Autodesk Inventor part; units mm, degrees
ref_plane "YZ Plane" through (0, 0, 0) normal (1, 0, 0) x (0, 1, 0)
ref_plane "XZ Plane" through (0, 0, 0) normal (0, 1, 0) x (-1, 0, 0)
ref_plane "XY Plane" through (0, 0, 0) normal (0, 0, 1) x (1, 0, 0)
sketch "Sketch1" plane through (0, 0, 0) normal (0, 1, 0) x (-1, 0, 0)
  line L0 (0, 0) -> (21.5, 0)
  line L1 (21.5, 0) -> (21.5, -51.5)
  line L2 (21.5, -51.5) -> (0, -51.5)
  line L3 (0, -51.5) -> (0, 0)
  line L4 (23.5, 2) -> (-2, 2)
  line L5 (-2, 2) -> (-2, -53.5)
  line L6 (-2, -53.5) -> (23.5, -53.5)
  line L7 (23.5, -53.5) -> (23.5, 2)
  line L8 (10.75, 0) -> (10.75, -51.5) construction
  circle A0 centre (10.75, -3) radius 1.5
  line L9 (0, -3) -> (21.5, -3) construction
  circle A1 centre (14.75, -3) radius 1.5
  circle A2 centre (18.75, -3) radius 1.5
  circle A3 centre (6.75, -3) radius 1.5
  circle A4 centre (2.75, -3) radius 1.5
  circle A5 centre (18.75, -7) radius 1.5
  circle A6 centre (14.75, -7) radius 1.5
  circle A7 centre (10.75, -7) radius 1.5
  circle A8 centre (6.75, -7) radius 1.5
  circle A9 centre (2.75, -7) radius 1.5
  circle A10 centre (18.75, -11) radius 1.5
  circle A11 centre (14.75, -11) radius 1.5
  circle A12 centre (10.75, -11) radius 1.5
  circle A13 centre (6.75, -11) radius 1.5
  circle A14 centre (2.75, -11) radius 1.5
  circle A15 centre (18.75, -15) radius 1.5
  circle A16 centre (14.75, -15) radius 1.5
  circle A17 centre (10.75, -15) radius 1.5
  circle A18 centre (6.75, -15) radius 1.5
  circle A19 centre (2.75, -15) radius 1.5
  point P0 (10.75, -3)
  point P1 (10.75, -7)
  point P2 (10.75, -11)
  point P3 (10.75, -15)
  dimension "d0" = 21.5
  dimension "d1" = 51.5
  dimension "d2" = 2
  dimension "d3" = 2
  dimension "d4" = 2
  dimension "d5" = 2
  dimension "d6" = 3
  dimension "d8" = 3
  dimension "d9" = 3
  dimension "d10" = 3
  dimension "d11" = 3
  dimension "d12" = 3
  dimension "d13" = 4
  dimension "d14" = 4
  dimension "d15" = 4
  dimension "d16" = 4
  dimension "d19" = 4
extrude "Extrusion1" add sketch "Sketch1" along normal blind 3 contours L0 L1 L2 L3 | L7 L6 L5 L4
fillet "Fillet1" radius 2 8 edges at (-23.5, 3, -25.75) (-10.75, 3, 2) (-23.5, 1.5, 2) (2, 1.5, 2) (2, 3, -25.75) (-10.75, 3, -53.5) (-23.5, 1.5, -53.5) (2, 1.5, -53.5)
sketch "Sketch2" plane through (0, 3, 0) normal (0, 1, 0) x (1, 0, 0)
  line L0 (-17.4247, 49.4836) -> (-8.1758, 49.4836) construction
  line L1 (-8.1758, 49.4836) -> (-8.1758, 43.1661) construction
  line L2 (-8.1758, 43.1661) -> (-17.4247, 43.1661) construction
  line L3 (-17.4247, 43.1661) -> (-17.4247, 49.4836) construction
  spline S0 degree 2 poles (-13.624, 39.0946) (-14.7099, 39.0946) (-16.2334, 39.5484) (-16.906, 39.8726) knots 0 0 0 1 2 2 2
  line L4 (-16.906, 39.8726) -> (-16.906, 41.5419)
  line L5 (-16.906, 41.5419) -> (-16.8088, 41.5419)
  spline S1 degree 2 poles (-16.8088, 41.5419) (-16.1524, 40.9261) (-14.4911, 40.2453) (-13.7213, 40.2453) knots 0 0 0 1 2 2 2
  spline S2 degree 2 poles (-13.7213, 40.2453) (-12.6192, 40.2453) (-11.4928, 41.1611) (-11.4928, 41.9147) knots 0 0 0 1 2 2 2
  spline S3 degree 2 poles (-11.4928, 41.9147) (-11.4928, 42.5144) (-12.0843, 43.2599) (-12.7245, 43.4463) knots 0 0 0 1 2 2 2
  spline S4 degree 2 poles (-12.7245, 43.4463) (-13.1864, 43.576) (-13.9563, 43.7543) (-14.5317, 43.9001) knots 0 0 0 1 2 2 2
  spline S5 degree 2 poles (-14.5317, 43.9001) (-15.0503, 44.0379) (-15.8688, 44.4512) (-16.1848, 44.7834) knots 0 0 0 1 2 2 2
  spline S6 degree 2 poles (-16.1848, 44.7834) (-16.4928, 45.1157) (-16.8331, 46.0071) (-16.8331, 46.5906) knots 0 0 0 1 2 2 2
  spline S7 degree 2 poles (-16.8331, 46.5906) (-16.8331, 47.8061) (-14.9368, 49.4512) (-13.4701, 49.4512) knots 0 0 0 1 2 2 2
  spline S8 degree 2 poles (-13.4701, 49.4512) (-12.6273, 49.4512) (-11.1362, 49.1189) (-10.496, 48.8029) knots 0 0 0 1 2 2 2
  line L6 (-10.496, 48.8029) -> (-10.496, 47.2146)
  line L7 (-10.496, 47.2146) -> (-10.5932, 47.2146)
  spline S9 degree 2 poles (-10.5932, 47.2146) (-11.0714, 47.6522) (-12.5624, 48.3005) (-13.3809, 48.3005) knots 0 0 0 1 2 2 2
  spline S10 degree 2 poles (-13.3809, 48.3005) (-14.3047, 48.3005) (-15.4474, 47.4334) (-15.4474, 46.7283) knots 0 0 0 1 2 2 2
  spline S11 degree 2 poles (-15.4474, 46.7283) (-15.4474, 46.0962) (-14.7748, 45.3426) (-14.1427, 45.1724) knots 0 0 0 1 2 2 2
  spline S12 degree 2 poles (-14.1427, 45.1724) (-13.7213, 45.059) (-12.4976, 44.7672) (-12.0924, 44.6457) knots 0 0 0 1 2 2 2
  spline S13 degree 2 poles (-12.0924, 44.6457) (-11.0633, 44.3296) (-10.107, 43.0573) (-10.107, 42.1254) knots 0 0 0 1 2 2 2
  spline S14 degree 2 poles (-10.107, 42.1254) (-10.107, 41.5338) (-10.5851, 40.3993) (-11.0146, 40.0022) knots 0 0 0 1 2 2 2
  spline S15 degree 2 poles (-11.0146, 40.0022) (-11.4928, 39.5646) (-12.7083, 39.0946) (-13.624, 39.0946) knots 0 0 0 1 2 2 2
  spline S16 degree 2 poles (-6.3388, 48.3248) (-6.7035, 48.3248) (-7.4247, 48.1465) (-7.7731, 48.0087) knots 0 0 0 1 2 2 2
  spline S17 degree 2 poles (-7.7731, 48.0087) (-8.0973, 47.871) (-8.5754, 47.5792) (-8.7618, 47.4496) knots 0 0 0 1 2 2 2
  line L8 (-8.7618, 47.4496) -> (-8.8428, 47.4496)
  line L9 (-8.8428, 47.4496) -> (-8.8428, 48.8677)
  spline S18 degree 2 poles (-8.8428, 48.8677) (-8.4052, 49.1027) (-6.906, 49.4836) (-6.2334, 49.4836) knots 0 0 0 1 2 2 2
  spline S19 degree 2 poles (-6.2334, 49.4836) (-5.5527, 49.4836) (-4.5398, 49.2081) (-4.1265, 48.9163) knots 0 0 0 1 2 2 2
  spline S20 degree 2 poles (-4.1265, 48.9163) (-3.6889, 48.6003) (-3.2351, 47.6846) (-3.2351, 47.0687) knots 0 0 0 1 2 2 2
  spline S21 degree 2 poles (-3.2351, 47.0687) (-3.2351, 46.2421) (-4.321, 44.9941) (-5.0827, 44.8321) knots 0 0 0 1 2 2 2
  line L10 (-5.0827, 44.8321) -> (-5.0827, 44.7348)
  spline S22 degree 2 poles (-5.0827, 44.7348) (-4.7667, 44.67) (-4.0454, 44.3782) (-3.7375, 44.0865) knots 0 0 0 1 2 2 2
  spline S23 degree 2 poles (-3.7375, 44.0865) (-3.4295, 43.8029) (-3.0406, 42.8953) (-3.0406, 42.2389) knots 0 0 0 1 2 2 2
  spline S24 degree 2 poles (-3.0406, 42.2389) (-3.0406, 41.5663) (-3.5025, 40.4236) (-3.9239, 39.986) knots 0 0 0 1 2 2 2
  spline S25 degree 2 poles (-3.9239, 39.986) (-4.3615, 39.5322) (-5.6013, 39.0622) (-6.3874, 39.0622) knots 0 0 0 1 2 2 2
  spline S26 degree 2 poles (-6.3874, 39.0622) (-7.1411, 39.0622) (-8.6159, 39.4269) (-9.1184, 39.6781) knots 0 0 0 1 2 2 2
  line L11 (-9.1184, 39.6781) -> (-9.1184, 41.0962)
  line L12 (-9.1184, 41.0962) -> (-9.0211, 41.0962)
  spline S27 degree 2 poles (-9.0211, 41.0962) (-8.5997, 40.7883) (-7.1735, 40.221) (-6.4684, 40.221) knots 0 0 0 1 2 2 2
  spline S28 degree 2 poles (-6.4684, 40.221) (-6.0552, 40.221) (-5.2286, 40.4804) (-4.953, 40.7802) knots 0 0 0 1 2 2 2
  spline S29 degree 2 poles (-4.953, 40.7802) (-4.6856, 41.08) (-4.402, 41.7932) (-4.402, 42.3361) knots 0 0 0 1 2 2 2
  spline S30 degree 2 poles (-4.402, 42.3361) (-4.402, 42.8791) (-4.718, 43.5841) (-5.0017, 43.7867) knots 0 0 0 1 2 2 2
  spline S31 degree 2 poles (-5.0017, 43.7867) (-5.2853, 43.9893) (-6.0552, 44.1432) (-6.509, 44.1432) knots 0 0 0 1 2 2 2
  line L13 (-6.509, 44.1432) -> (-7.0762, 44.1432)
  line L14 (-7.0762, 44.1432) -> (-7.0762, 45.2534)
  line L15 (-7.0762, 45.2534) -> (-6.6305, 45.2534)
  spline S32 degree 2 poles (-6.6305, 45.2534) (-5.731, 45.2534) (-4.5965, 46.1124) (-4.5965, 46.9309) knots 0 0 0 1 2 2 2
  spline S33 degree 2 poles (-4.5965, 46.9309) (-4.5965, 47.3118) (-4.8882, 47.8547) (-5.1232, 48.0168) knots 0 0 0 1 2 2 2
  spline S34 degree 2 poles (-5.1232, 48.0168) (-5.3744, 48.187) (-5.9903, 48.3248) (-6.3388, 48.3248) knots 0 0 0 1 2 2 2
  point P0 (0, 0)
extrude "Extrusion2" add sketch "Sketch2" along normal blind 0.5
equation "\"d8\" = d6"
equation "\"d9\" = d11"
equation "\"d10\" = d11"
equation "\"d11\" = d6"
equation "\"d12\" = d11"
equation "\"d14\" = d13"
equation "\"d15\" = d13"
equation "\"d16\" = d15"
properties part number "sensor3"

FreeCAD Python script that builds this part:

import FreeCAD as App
import Part
import Sketcher

V = App.Vector


def edges_at(feature, points):
    """Names of the edges that pass closest to the given points."""
    edges = feature.Shape.Edges
    near = lambda p: min(range(len(edges)), key=lambda i: edges[i].distToShape(Part.Vertex(*p))[0])
    return sorted({f"Edge{near(p) + 1}" for p in points})

doc = App.newDocument("Part")
body = doc.addObject("PartDesign::Body", "Body")

sketch1 = body.newObject("Sketcher::SketchObject", "Sketch")
sketch1.AttachmentSupport = (doc.getObject("XZ_Plane"), [""])
sketch1.MapMode = "FlatFace"
sketch1.addGeometry([
    Part.LineSegment(V(-23.5, -53.5, 0), V(-23.5, 2, 0)),
    Part.LineSegment(V(-23.5, 2, 0), V(2, 2, 0)),
    Part.LineSegment(V(2, 2, 0), V(2, -53.5, 0)),
    Part.LineSegment(V(2, -53.5, 0), V(-23.5, -53.5, 0)),
    Part.Circle(V(-2.75, -15, 0), V(0, 0, 1), 1.5),
    Part.Circle(V(-6.75, -15, 0), V(0, 0, 1), 1.5),
    Part.Circle(V(-2.75, -11, 0), V(0, 0, 1), 1.5),
    Part.Circle(V(-2.75, -7, 0), V(0, 0, 1), 1.5),
    Part.Circle(V(-2.75, -3, 0), V(0, 0, 1), 1.5),
    Part.Circle(V(-6.75, -11, 0), V(0, 0, 1), 1.5),
    Part.Circle(V(-6.75, -7, 0), V(0, 0, 1), 1.5),
    Part.Circle(V(-6.75, -3, 0), V(0, 0, 1), 1.5),
    Part.Circle(V(-10.75, -15, 0), V(0, 0, 1), 1.5),
    Part.Circle(V(-14.75, -15, 0), V(0, 0, 1), 1.5),
    Part.Circle(V(-18.75, -15, 0), V(0, 0, 1), 1.5),
    Part.Circle(V(-10.75, -11, 0), V(0, 0, 1), 1.5),
    Part.Circle(V(-10.75, -7, 0), V(0, 0, 1), 1.5),
    Part.Circle(V(-14.75, -11, 0), V(0, 0, 1), 1.5),
    Part.Circle(V(-14.75, -7, 0), V(0, 0, 1), 1.5),
    Part.Circle(V(-10.75, -3, 0), V(0, 0, 1), 1.5),
    Part.Circle(V(-14.75, -3, 0), V(0, 0, 1), 1.5),
    Part.Circle(V(-18.75, -11, 0), V(0, 0, 1), 1.5),
    Part.Circle(V(-18.75, -7, 0), V(0, 0, 1), 1.5),
    Part.Circle(V(-18.75, -3, 0), V(0, 0, 1), 1.5),
], False)
sketch1.addConstraint([
    Sketcher.Constraint("Coincident", 0, 2, 1, 1),
    Sketcher.Constraint("Coincident", 1, 2, 2, 1),
    Sketcher.Constraint("Coincident", 2, 2, 3, 1),
    Sketcher.Constraint("Coincident", 3, 2, 0, 1),
    Sketcher.Constraint("Vertical", 0),
    Sketcher.Constraint("Horizontal", 1),
    Sketcher.Constraint("Vertical", 2),
    Sketcher.Constraint("Horizontal", 3),
    Sketcher.Constraint("Equal", 4, 5),
    Sketcher.Constraint("Equal", 5, 6),
    Sketcher.Constraint("Equal", 6, 7),
    Sketcher.Constraint("Equal", 7, 8),
    Sketcher.Constraint("Equal", 8, 9),
    Sketcher.Constraint("Equal", 9, 10),
    Sketcher.Constraint("Equal", 10, 11),
    Sketcher.Constraint("Equal", 11, 12),
    Sketcher.Constraint("Equal", 12, 13),
    Sketcher.Constraint("Equal", 13, 14),
    Sketcher.Constraint("Equal", 14, 15),
    Sketcher.Constraint("Equal", 15, 16),
    Sketcher.Constraint("Equal", 16, 17),
    Sketcher.Constraint("Equal", 17, 18),
    Sketcher.Constraint("Equal", 18, 19),
    Sketcher.Constraint("Equal", 19, 20),
    Sketcher.Constraint("Equal", 20, 21),
    Sketcher.Constraint("Equal", 21, 22),
    Sketcher.Constraint("Equal", 22, 23),
    Sketcher.Constraint("Horizontal", 4, 3, 5, 3),
    Sketcher.Constraint("Horizontal", 6, 3, 9, 3),
    Sketcher.Constraint("Horizontal", 7, 3, 10, 3),
    Sketcher.Constraint("Horizontal", 8, 3, 11, 3),
    Sketcher.Constraint("Horizontal", 5, 3, 12, 3),
    Sketcher.Constraint("Horizontal", 12, 3, 13, 3),
    Sketcher.Constraint("Horizontal", 13, 3, 14, 3),
    Sketcher.Constraint("Horizontal", 9, 3, 15, 3),
    Sketcher.Constraint("Horizontal", 10, 3, 16, 3),
    Sketcher.Constraint("Horizontal", 15, 3, 17, 3),
    Sketcher.Constraint("Horizontal", 16, 3, 18, 3),
    Sketcher.Constraint("Horizontal", 11, 3, 19, 3),
    Sketcher.Constraint("Horizontal", 19, 3, 20, 3),
    Sketcher.Constraint("Horizontal", 17, 3, 21, 3),
    Sketcher.Constraint("Horizontal", 18, 3, 22, 3),
    Sketcher.Constraint("Horizontal", 20, 3, 23, 3),
    Sketcher.Constraint("Vertical", 4, 3, 6, 3),
    Sketcher.Constraint("Vertical", 6, 3, 7, 3),
    Sketcher.Constraint("Vertical", 7, 3, 8, 3),
    Sketcher.Constraint("Vertical", 5, 3, 9, 3),
    Sketcher.Constraint("Vertical", 9, 3, 10, 3),
    Sketcher.Constraint("Vertical", 10, 3, 11, 3),
    Sketcher.Constraint("Vertical", 12, 3, 15, 3),
    Sketcher.Constraint("Vertical", 15, 3, 16, 3),
    Sketcher.Constraint("Vertical", 13, 3, 17, 3),
    Sketcher.Constraint("Vertical", 17, 3, 18, 3),
    Sketcher.Constraint("Vertical", 16, 3, 19, 3),
    Sketcher.Constraint("Vertical", 18, 3, 20, 3),
    Sketcher.Constraint("Vertical", 14, 3, 21, 3),
    Sketcher.Constraint("Vertical", 21, 3, 22, 3),
    Sketcher.Constraint("Vertical", 22, 3, 23, 3),
    Sketcher.Constraint("Diameter", 4, 3.0),
    Sketcher.Constraint("DistanceY", 8, 3, -1, 1, 3.0),
    Sketcher.Constraint("DistanceY", -1, 1, 0, 2, 2.0),
    Sketcher.Constraint("DistanceX", -1, 1, 1, 2, 2.0),
    Sketcher.Constraint("DistanceX", 5, 3, 4, 3, 4.0),
    Sketcher.Constraint("DistanceY", 4, 3, 6, 3, 4.0),
    Sketcher.Constraint("DistanceY", 6, 3, 7, 3, 4.0),
    Sketcher.Constraint("DistanceY", 7, 3, 8, 3, 4.0),
    Sketcher.Constraint("DistanceX", 12, 3, 5, 3, 4.0),
    Sketcher.Constraint("DistanceX", 13, 3, 12, 3, 4.0),
    Sketcher.Constraint("DistanceX", 14, 3, 13, 3, 4.0),
    Sketcher.Constraint("DistanceX", 1, 1, 1, 2, 25.5),
    Sketcher.Constraint("DistanceY", 0, 1, 0, 2, 55.5),
    Sketcher.Constraint("DistanceX", 4, 3, -1, 1, 2.75),
])
pad1 = body.newObject("PartDesign::Pad", "Pad")
pad1.Profile = sketch1
pad1.Length = 3
pad1.Reversed = True
doc.recompute()

fillet = body.newObject("PartDesign::Fillet", "Fillet")
fillet.Base = (pad1, edges_at(pad1, [
    (-23.5, 3, -25.75),
    (-10.75, 3, 2),
    (-23.5, 1.5, 2),
    (2, 1.5, 2),
    (2, 3, -25.75),
    (-10.75, 3, -53.5),
    (-23.5, 1.5, -53.5),
    (2, 1.5, -53.5),
]))
fillet.Radius = 2

sketch2 = body.newObject("Sketcher::SketchObject", "Sketch001")
sketch2.AttachmentSupport = (doc.getObject("XZ_Plane"), [""])
sketch2.MapMode = "FlatFace"
sketch2.AttachmentOffset = App.Placement(V(0, 0, -3), App.Rotation())
sketch2.addGeometry([
    Part.BSplineCurve([V(-13.624, -39.0946, 0), V(-14.7099, -39.0946, 0), V(-16.2334, -39.5484, 0), V(-16.906, -39.8726, 0)], [3, 1, 3], [0, 1, 2], False, 2, [1, 1, 1, 1], False),
    Part.BSplineCurve([V(-11.0146, -40.0022, 0), V(-11.4928, -39.5646, 0), V(-12.7083, -39.0946, 0), V(-13.624, -39.0946, 0)], [3, 1, 3], [0, 1, 2], False, 2, [1, 1, 1, 1], False),
    Part.BSplineCurve([V(-10.107, -42.1254, 0), V(-10.107, -41.5338, 0), V(-10.5851, -40.3993, 0), V(-11.0146, -40.0022, 0)], [3, 1, 3], [0, 1, 2], False, 2, [1, 1, 1, 1], False),
    Part.BSplineCurve([V(-12.0924, -44.6457, 0), V(-11.0633, -44.3296, 0), V(-10.107, -43.0573, 0), V(-10.107, -42.1254, 0)], [3, 1, 3], [0, 1, 2], False, 2, [1, 1, 1, 1], False),
    Part.BSplineCurve([V(-14.1427, -45.1724, 0), V(-13.7213, -45.059, 0), V(-12.4976, -44.7672, 0), V(-12.0924, -44.6457, 0)], [3, 1, 3], [0, 1, 2], False, 2, [1, 1, 1, 1], False),
    Part.BSplineCurve([V(-15.4474, -46.7283, 0), V(-15.4474, -46.0962, 0), V(-14.7748, -45.3426, 0), V(-14.1427, -45.1724, 0)], [3, 1, 3], [0, 1, 2], False, 2, [1, 1, 1, 1], False),
    Part.BSplineCurve([V(-13.3809, -48.3005, 0), V(-14.3047, -48.3005, 0), V(-15.4474, -47.4334, 0), V(-15.4474, -46.7283, 0)], [3, 1, 3], [0, 1, 2], False, 2, [1, 1, 1, 1], False),
    Part.BSplineCurve([V(-10.5932, -47.2146, 0), V(-11.0714, -47.6522, 0), V(-12.5624, -48.3005, 0), V(-13.3809, -48.3005, 0)], [3, 1, 3], [0, 1, 2], False, 2, [1, 1, 1, 1], False),
    Part.LineSegment(V(-10.5932, -47.2146, 0), V(-10.496, -47.2146, 0)),
    Part.LineSegment(V(-10.496, -47.2146, 0), V(-10.496, -48.8029, 0)),
    Part.BSplineCurve([V(-13.4701, -49.4512, 0), V(-12.6273, -49.4512, 0), V(-11.1362, -49.1189, 0), V(-10.496, -48.8029, 0)], [3, 1, 3], [0, 1, 2], False, 2, [1, 1, 1, 1], False),
    Part.BSplineCurve([V(-16.8331, -46.5906, 0), V(-16.8331, -47.8061, 0), V(-14.9368, -49.4512, 0), V(-13.4701, -49.4512, 0)], [3, 1, 3], [0, 1, 2], False, 2, [1, 1, 1, 1], False),
    Part.BSplineCurve([V(-16.1848, -44.7834, 0), V(-16.4928, -45.1157, 0), V(-16.8331, -46.0071, 0), V(-16.8331, -46.5906, 0)], [3, 1, 3], [0, 1, 2], False, 2, [1, 1, 1, 1], False),
    Part.BSplineCurve([V(-14.5317, -43.9001, 0), V(-15.0503, -44.0379, 0), V(-15.8688, -44.4512, 0), V(-16.1848, -44.7834, 0)], [3, 1, 3], [0, 1, 2], False, 2, [1, 1, 1, 1], False),
    Part.BSplineCurve([V(-12.7245, -43.4463, 0), V(-13.1864, -43.576, 0), V(-13.9563, -43.7543, 0), V(-14.5317, -43.9001, 0)], [3, 1, 3], [0, 1, 2], False, 2, [1, 1, 1, 1], False),
    Part.BSplineCurve([V(-11.4928, -41.9147, 0), V(-11.4928, -42.5144, 0), V(-12.0843, -43.2599, 0), V(-12.7245, -43.4463, 0)], [3, 1, 3], [0, 1, 2], False, 2, [1, 1, 1, 1], False),
    Part.BSplineCurve([V(-13.7213, -40.2453, 0), V(-12.6192, -40.2453, 0), V(-11.4928, -41.1611, 0), V(-11.4928, -41.9147, 0)], [3, 1, 3], [0, 1, 2], False, 2, [1, 1, 1, 1], False),
    Part.BSplineCurve([V(-16.8088, -41.5419, 0), V(-16.1524, -40.9261, 0), V(-14.4911, -40.2453, 0), V(-13.7213, -40.2453, 0)], [3, 1, 3], [0, 1, 2], False, 2, [1, 1, 1, 1], False),
    Part.LineSegment(V(-16.8088, -41.5419, 0), V(-16.906, -41.5419, 0)),
    Part.LineSegment(V(-16.906, -41.5419, 0), V(-16.906, -39.8726, 0)),
    Part.BSplineCurve([V(-6.3388, -48.3248, 0), V(-6.7035, -48.3248, 0), V(-7.4247, -48.1465, 0), V(-7.7731, -48.0087, 0)], [3, 1, 3], [0, 1, 2], False, 2, [1, 1, 1, 1], False),
    Part.BSplineCurve([V(-5.1232, -48.0168, 0), V(-5.3744, -48.187, 0), V(-5.9903, -48.3248, 0), V(-6.3388, -48.3248, 0)], [3, 1, 3], [0, 1, 2], False, 2, [1, 1, 1, 1], False),
    Part.BSplineCurve([V(-4.5965, -46.9309, 0), V(-4.5965, -47.3118, 0), V(-4.8882, -47.8547, 0), V(-5.1232, -48.0168, 0)], [3, 1, 3], [0, 1, 2], False, 2, [1, 1, 1, 1], False),
    Part.BSplineCurve([V(-6.6305, -45.2534, 0), V(-5.731, -45.2534, 0), V(-4.5965, -46.1124, 0), V(-4.5965, -46.9309, 0)], [3, 1, 3], [0, 1, 2], False, 2, [1, 1, 1, 1], False),
    Part.LineSegment(V(-6.6305, -45.2534, 0), V(-7.0762, -45.2534, 0)),
    Part.LineSegment(V(-7.0762, -45.2534, 0), V(-7.0762, -44.1432, 0)),
    Part.LineSegment(V(-7.0762, -44.1432, 0), V(-6.509, -44.1432, 0)),
    Part.BSplineCurve([V(-5.0017, -43.7867, 0), V(-5.2853, -43.9893, 0), V(-6.0552, -44.1432, 0), V(-6.509, -44.1432, 0)], [3, 1, 3], [0, 1, 2], False, 2, [1, 1, 1, 1], False),
    Part.BSplineCurve([V(-4.402, -42.3361, 0), V(-4.402, -42.8791, 0), V(-4.718, -43.5841, 0), V(-5.0017, -43.7867, 0)], [3, 1, 3], [0, 1, 2], False, 2, [1, 1, 1, 1], False),
    Part.BSplineCurve([V(-4.953, -40.7802, 0), V(-4.6856, -41.08, 0), V(-4.402, -41.7932, 0), V(-4.402, -42.3361, 0)], [3, 1, 3], [0, 1, 2], False, 2, [1, 1, 1, 1], False),
    Part.BSplineCurve([V(-6.4684, -40.221, 0), V(-6.0552, -40.221, 0), V(-5.2286, -40.4804, 0), V(-4.953, -40.7802, 0)], [3, 1, 3], [0, 1, 2], False, 2, [1, 1, 1, 1], False),
    Part.BSplineCurve([V(-9.0211, -41.0962, 0), V(-8.5997, -40.7883, 0), V(-7.1735, -40.221, 0), V(-6.4684, -40.221, 0)], [3, 1, 3], [0, 1, 2], False, 2, [1, 1, 1, 1], False),
    Part.LineSegment(V(-9.0211, -41.0962, 0), V(-9.1184, -41.0962, 0)),
    Part.LineSegment(V(-9.1184, -41.0962, 0), V(-9.1184, -39.6781, 0)),
    Part.BSplineCurve([V(-6.3874, -39.0622, 0), V(-7.1411, -39.0622, 0), V(-8.6159, -39.4269, 0), V(-9.1184, -39.6781, 0)], [3, 1, 3], [0, 1, 2], False, 2, [1, 1, 1, 1], False),
    Part.BSplineCurve([V(-3.9239, -39.986, 0), V(-4.3615, -39.5322, 0), V(-5.6013, -39.0622, 0), V(-6.3874, -39.0622, 0)], [3, 1, 3], [0, 1, 2], False, 2, [1, 1, 1, 1], False),
    Part.BSplineCurve([V(-3.0406, -42.2389, 0), V(-3.0406, -41.5663, 0), V(-3.5025, -40.4236, 0), V(-3.9239, -39.986, 0)], [3, 1, 3], [0, 1, 2], False, 2, [1, 1, 1, 1], False),
    Part.BSplineCurve([V(-3.7375, -44.0865, 0), V(-3.4295, -43.8029, 0), V(-3.0406, -42.8953, 0), V(-3.0406, -42.2389, 0)], [3, 1, 3], [0, 1, 2], False, 2, [1, 1, 1, 1], False),
    Part.BSplineCurve([V(-5.0827, -44.7348, 0), V(-4.7667, -44.67, 0), V(-4.0454, -44.3782, 0), V(-3.7375, -44.0865, 0)], [3, 1, 3], [0, 1, 2], False, 2, [1, 1, 1, 1], False),
    Part.LineSegment(V(-5.0827, -44.7348, 0), V(-5.0827, -44.8321, 0)),
    Part.BSplineCurve([V(-3.2351, -47.0687, 0), V(-3.2351, -46.2421, 0), V(-4.321, -44.9941, 0), V(-5.0827, -44.8321, 0)], [3, 1, 3], [0, 1, 2], False, 2, [1, 1, 1, 1], False),
    Part.BSplineCurve([V(-4.1265, -48.9163, 0), V(-3.6889, -48.6003, 0), V(-3.2351, -47.6846, 0), V(-3.2351, -47.0687, 0)], [3, 1, 3], [0, 1, 2], False, 2, [1, 1, 1, 1], False),
    Part.BSplineCurve([V(-6.2334, -49.4836, 0), V(-5.5527, -49.4836, 0), V(-4.5398, -49.2081, 0), V(-4.1265, -48.9163, 0)], [3, 1, 3], [0, 1, 2], False, 2, [1, 1, 1, 1], False),
    Part.BSplineCurve([V(-8.8428, -48.8677, 0), V(-8.4052, -49.1027, 0), V(-6.906, -49.4836, 0), V(-6.2334, -49.4836, 0)], [3, 1, 3], [0, 1, 2], False, 2, [1, 1, 1, 1], False),
    Part.LineSegment(V(-8.8428, -48.8677, 0), V(-8.8428, -47.4496, 0)),
    Part.LineSegment(V(-8.8428, -47.4496, 0), V(-8.7618, -47.4496, 0)),
    Part.BSplineCurve([V(-7.7731, -48.0087, 0), V(-8.0973, -47.871, 0), V(-8.5754, -47.5792, 0), V(-8.7618, -47.4496, 0)], [3, 1, 3], [0, 1, 2], False, 2, [1, 1, 1, 1], False),
], False)
sketch2.addConstraint([
    Sketcher.Constraint("Block", 0),
    Sketcher.Constraint("Block", 1),
    Sketcher.Constraint("Block", 2),
    Sketcher.Constraint("Block", 3),
    Sketcher.Constraint("Block", 4),
    Sketcher.Constraint("Block", 5),
    Sketcher.Constraint("Block", 6),
    Sketcher.Constraint("Block", 7),
    Sketcher.Constraint("Block", 10),
    Sketcher.Constraint("Block", 11),
    Sketcher.Constraint("Block", 12),
    Sketcher.Constraint("Block", 13),
    Sketcher.Constraint("Block", 14),
    Sketcher.Constraint("Block", 15),
    Sketcher.Constraint("Block", 16),
    Sketcher.Constraint("Block", 17),
    Sketcher.Constraint("Block", 20),
    Sketcher.Constraint("Block", 21),
    Sketcher.Constraint("Block", 22),
    Sketcher.Constraint("Block", 23),
    Sketcher.Constraint("Block", 27),
    Sketcher.Constraint("Block", 28),
    Sketcher.Constraint("Block", 29),
    Sketcher.Constraint("Block", 30),
    Sketcher.Constraint("Block", 31),
    Sketcher.Constraint("Block", 34),
    Sketcher.Constraint("Block", 35),
    Sketcher.Constraint("Block", 36),
    Sketcher.Constraint("Block", 37),
    Sketcher.Constraint("Block", 38),
    Sketcher.Constraint("Block", 40),
    Sketcher.Constraint("Block", 41),
    Sketcher.Constraint("Block", 42),
    Sketcher.Constraint("Block", 43),
    Sketcher.Constraint("Block", 46),
    Sketcher.Constraint("Coincident", 7, 1, 8, 1),
    Sketcher.Constraint("Coincident", 8, 2, 9, 1),
    Sketcher.Constraint("Coincident", 9, 2, 10, 2),
    Sketcher.Constraint("Coincident", 17, 1, 18, 1),
    Sketcher.Constraint("Coincident", 18, 2, 19, 1),
    Sketcher.Constraint("Coincident", 19, 2, 0, 2),
    Sketcher.Constraint("Coincident", 23, 1, 24, 1),
    Sketcher.Constraint("Coincident", 24, 2, 25, 1),
    Sketcher.Constraint("Coincident", 25, 2, 26, 1),
    Sketcher.Constraint("Coincident", 26, 2, 27, 2),
    Sketcher.Constraint("Coincident", 31, 1, 32, 1),
    Sketcher.Constraint("Coincident", 32, 2, 33, 1),
    Sketcher.Constraint("Coincident", 33, 2, 34, 2),
    Sketcher.Constraint("Coincident", 38, 1, 39, 1),
    Sketcher.Constraint("Coincident", 39, 2, 40, 2),
    Sketcher.Constraint("Coincident", 43, 1, 44, 1),
    Sketcher.Constraint("Coincident", 44, 2, 45, 1),
    Sketcher.Constraint("Coincident", 45, 2, 46, 2),
    Sketcher.Constraint("Horizontal", 8),
    Sketcher.Constraint("Vertical", 9),
    Sketcher.Constraint("Horizontal", 18),
    Sketcher.Constraint("Vertical", 19),
    Sketcher.Constraint("Horizontal", 24),
    Sketcher.Constraint("Vertical", 25),
    Sketcher.Constraint("Horizontal", 26),
    Sketcher.Constraint("Horizontal", 32),
    Sketcher.Constraint("Vertical", 33),
    Sketcher.Constraint("Vertical", 44),
    Sketcher.Constraint("Horizontal", 45),
    Sketcher.Constraint("DistanceX", 24, 2, 24, 1, 0.4457),
])
pad2 = body.newObject("PartDesign::Pad", "Pad001")
pad2.Profile = sketch2
pad2.Length = 0.5
pad2.Reversed = True

doc.recompute()
